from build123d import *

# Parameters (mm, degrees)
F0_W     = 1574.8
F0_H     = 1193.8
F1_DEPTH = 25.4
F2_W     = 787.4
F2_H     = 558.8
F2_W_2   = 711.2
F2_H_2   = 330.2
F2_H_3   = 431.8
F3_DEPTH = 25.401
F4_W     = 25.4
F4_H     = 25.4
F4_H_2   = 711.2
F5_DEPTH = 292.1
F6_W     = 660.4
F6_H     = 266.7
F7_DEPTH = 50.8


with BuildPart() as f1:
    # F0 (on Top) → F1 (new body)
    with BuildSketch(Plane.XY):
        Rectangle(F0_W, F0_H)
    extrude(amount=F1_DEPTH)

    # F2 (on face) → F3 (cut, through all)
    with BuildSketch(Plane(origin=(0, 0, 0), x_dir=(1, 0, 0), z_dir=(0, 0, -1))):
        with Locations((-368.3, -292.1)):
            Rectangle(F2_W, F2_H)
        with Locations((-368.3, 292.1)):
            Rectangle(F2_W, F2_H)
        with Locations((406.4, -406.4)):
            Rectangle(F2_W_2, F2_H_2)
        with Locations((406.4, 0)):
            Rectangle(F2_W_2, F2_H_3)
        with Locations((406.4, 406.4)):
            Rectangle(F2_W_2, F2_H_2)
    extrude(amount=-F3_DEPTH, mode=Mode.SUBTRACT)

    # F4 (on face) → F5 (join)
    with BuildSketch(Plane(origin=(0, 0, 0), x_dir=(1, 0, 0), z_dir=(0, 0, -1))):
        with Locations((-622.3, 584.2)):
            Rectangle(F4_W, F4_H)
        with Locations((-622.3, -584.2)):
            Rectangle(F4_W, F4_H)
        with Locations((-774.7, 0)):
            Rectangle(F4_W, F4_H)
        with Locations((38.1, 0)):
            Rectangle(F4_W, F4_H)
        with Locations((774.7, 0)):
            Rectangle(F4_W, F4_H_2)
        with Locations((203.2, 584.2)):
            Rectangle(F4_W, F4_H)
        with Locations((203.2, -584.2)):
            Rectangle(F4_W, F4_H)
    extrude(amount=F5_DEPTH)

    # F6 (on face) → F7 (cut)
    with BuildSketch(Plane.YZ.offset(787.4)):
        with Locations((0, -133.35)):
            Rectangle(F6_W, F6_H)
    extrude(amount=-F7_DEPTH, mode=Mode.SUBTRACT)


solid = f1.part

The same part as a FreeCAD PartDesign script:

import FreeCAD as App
import Part
import Sketcher

V = App.Vector
Q = App.Units.Quantity

doc = App.newDocument("Part")
body = doc.addObject("PartDesign::Body", "Body")

sketch1 = doc.addObject("Sketcher::SketchObject", "Sketch")
body.addObject(sketch1)
sketch1.AttachmentSupport = (doc.XY_Plane, [""])
sketch1.MapMode = "FlatFace"
sketch1.addGeometry([
    Part.LineSegment(V(-787.4, 596.9, 0), V(-787.4, -596.9, 0)),
    Part.LineSegment(V(-787.4, -596.9, 0), V(787.4, -596.9, 0)),
    Part.LineSegment(V(787.4, -596.9, 0), V(787.4, 596.9, 0)),
    Part.LineSegment(V(787.4, 596.9, 0), V(-787.4, 596.9, 0)),
], False)
sketch1.addConstraint([
    Sketcher.Constraint("Coincident", 0, 2, 1, 1),
    Sketcher.Constraint("Coincident", 1, 2, 2, 1),
    Sketcher.Constraint("Coincident", 2, 2, 3, 1),
    Sketcher.Constraint("Coincident", 3, 2, 0, 1),
    Sketcher.Constraint("Vertical", 0),
    Sketcher.Constraint("Horizontal", 1),
    Sketcher.Constraint("Vertical", 2),
    Sketcher.Constraint("Horizontal", 3),
    Sketcher.Constraint("Symmetric", 0, 2, 2, 2, -1, 1),
    Sketcher.Constraint("DistanceX", 1, 1, 1, 2, Q("62 in")),
    Sketcher.Constraint("DistanceY", 0, 2, 0, 1, Q("47 in")),
])
pad1 = doc.addObject("PartDesign::Pad", "Pad")
body.addObject(pad1)
pad1.Profile = sketch1
pad1.Length = Q("1 in")

sketch2 = doc.addObject("Sketcher::SketchObject", "Sketch001")
body.addObject(sketch2)
sketch2.AttachmentSupport = (doc.XY_Plane, [""])
sketch2.MapMode = "FlatFace"
sketch2.addGeometry([
    Part.LineSegment(V(-762, 12.7, 0), V(-762, 571.5, 0)),
    Part.LineSegment(V(-762, 571.5, 0), V(25.4, 571.5, 0)),
    Part.LineSegment(V(25.4, 571.5, 0), V(25.4, 12.7, 0)),
    Part.LineSegment(V(25.4, 12.7, 0), V(-762, 12.7, 0)),
    Part.LineSegment(V(-762, -571.5, 0), V(-762, -12.7, 0)),
    Part.LineSegment(V(-762, -12.7, 0), V(25.4, -12.7, 0)),
    Part.LineSegment(V(25.4, -12.7, 0), V(25.4, -571.5, 0)),
    Part.LineSegment(V(25.4, -571.5, 0), V(-762, -571.5, 0)),
    Part.LineSegment(V(50.8, 241.3, 0), V(50.8, 571.5, 0)),
    Part.LineSegment(V(50.8, 571.5, 0), V(762, 571.5, 0)),
    Part.LineSegment(V(762, 571.5, 0), V(762, 241.3, 0)),
    Part.LineSegment(V(762, 241.3, 0), V(50.8, 241.3, 0)),
    Part.LineSegment(V(50.8, -215.9, 0), V(50.8, 215.9, 0)),
    Part.LineSegment(V(50.8, 215.9, 0), V(762, 215.9, 0)),
    Part.LineSegment(V(762, 215.9, 0), V(762, -215.9, 0)),
    Part.LineSegment(V(762, -215.9, 0), V(50.8, -215.9, 0)),
    Part.LineSegment(V(50.8, -571.5, 0), V(50.8, -241.3, 0)),
    Part.LineSegment(V(50.8, -241.3, 0), V(762, -241.3, 0)),
    Part.LineSegment(V(762, -241.3, 0), V(762, -571.5, 0)),
    Part.LineSegment(V(762, -571.5, 0), V(50.8, -571.5, 0)),
], False)
sketch2.addConstraint([
    Sketcher.Constraint("Coincident", 0, 2, 1, 1),
    Sketcher.Constraint("Coincident", 1, 2, 2, 1),
    Sketcher.Constraint("Coincident", 2, 2, 3, 1),
    Sketcher.Constraint("Coincident", 3, 2, 0, 1),
    Sketcher.Constraint("Coincident", 4, 2, 5, 1),
    Sketcher.Constraint("Coincident", 5, 2, 6, 1),
    Sketcher.Constraint("Coincident", 6, 2, 7, 1),
    Sketcher.Constraint("Coincident", 7, 2, 4, 1),
    Sketcher.Constraint("Coincident", 8, 2, 9, 1),
    Sketcher.Constraint("Coincident", 9, 2, 10, 1),
    Sketcher.Constraint("Coincident", 10, 2, 11, 1),
    Sketcher.Constraint("Coincident", 11, 2, 8, 1),
    Sketcher.Constraint("Coincident", 12, 2, 13, 1),
    Sketcher.Constraint("Coincident", 13, 2, 14, 1),
    Sketcher.Constraint("Coincident", 14, 2, 15, 1),
    Sketcher.Constraint("Coincident", 15, 2, 12, 1),
    Sketcher.Constraint("Coincident", 16, 2, 17, 1),
    Sketcher.Constraint("Coincident", 17, 2, 18, 1),
    Sketcher.Constraint("Coincident", 18, 2, 19, 1),
    Sketcher.Constraint("Coincident", 19, 2, 16, 1),
    Sketcher.Constraint("Vertical", 0),
    Sketcher.Constraint("Horizontal", 1),
    Sketcher.Constraint("Vertical", 2),
    Sketcher.Constraint("Horizontal", 3),
    Sketcher.Constraint("Vertical", 4),
    Sketcher.Constraint("Horizontal", 5),
    Sketcher.Constraint("Vertical", 6),
    Sketcher.Constraint("Horizontal", 7),
    Sketcher.Constraint("Vertical", 8),
    Sketcher.Constraint("Horizontal", 9),
    Sketcher.Constraint("Vertical", 10),
    Sketcher.Constraint("Horizontal", 11),
    Sketcher.Constraint("Vertical", 12),
    Sketcher.Constraint("Horizontal", 13),
    Sketcher.Constraint("Vertical", 14),
    Sketcher.Constraint("Horizontal", 15),
    Sketcher.Constraint("Vertical", 16),
    Sketcher.Constraint("Horizontal", 17),
    Sketcher.Constraint("Vertical", 18),
    Sketcher.Constraint("Horizontal", 19),
    Sketcher.Constraint("Symmetric", 7, 2, 9, 2, -1, 1),
    Sketcher.Constraint("Symmetric", 0, 2, 18, 2, -1, 1),
    Sketcher.Constraint("Symmetric", 0, 2, 9, 2, -2),
    Sketcher.Constraint("Symmetric", 2, 2, 5, 2, -1),
    Sketcher.Constraint("Symmetric", 11, 2, 16, 2, -1),
    Sketcher.Constraint("Vertical", 11, 2, 12, 2),
    Sketcher.Constraint("Vertical", 10, 2, 13, 2),
    Sketcher.Constraint("DistanceX", 1, 1, 1, 2, Q("31 in")),
    Sketcher.Constraint("DistanceX", 9, 1, 9, 2, Q("28 in")),
    Sketcher.Constraint("DistanceY", 0, 1, 0, 2, Q("22 in")),
    Sketcher.Constraint("DistanceY", 8, 1, 8, 2, Q("13 in")),
    Sketcher.Constraint("DistanceY", 12, 1, 12, 2, Q("17 in")),
    Sketcher.Constraint("DistanceX", 0, 2, -1, 1, Q("30 in")),
    Sketcher.Constraint("DistanceY", 4, 2, 3, 2, Q("1 in")),
    Sketcher.Constraint("DistanceY", 12, 2, 11, 2, Q("1 in")),
])
pocket1 = doc.addObject("PartDesign::Pocket", "Pocket")
body.addObject(pocket1)
pocket1.Profile = sketch2
pocket1.Type = "ThroughAll"
pocket1.Reversed = True

sketch3 = doc.addObject("Sketcher::SketchObject", "Sketch002")
body.addObject(sketch3)
sketch3.AttachmentSupport = (doc.XY_Plane, [""])
sketch3.MapMode = "FlatFace"
sketch3.addGeometry([
    Part.LineSegment(V(-635, -596.9, 0), V(-635, -571.5, 0)),
    Part.LineSegment(V(-635, -571.5, 0), V(-609.6, -571.5, 0)),
    Part.LineSegment(V(-609.6, -571.5, 0), V(-609.6, -596.9, 0)),
    Part.LineSegment(V(-609.6, -596.9, 0), V(-635, -596.9, 0)),
    Part.LineSegment(V(-635, 571.5, 0), V(-635, 596.9, 0)),
    Part.LineSegment(V(-635, 596.9, 0), V(-609.6, 596.9, 0)),
    Part.LineSegment(V(-609.6, 596.9, 0), V(-609.6, 571.5, 0)),
    Part.LineSegment(V(-609.6, 571.5, 0), V(-635, 571.5, 0)),
    Part.LineSegment(V(-787.4, -12.7, 0), V(-787.4, 12.7, 0)),
    Part.LineSegment(V(-787.4, 12.7, 0), V(-762, 12.7, 0)),
    Part.LineSegment(V(-762, 12.7, 0), V(-762, -12.7, 0)),
    Part.LineSegment(V(-762, -12.7, 0), V(-787.4, -12.7, 0)),
    Part.LineSegment(V(25.4, -12.7, 0), V(25.4, 12.7, 0)),
    Part.LineSegment(V(25.4, 12.7, 0), V(50.8, 12.7, 0)),
    Part.LineSegment(V(50.8, 12.7, 0), V(50.8, -12.7, 0)),
    Part.LineSegment(V(50.8, -12.7, 0), V(25.4, -12.7, 0)),
    Part.LineSegment(V(762, -355.6, 0), V(762, 355.6, 0)),
    Part.LineSegment(V(762, 355.6, 0), V(787.4, 355.6, 0)),
    Part.LineSegment(V(787.4, 355.6, 0), V(787.4, -355.6, 0)),
    Part.LineSegment(V(787.4, -355.6, 0), V(762, -355.6, 0)),
    Part.LineSegment(V(190.5, -596.9, 0), V(190.5, -571.5, 0)),
    Part.LineSegment(V(190.5, -571.5, 0), V(215.9, -571.5, 0)),
    Part.LineSegment(V(215.9, -571.5, 0), V(215.9, -596.9, 0)),
    Part.LineSegment(V(215.9, -596.9, 0), V(190.5, -596.9, 0)),
    Part.LineSegment(V(190.5, 571.5, 0), V(190.5, 596.9, 0)),
    Part.LineSegment(V(190.5, 596.9, 0), V(215.9, 596.9, 0)),
    Part.LineSegment(V(215.9, 596.9, 0), V(215.9, 571.5, 0)),
    Part.LineSegment(V(215.9, 571.5, 0), V(190.5, 571.5, 0)),
], False)
sketch3.addConstraint([
    Sketcher.Constraint("Coincident", 0, 2, 1, 1),
    Sketcher.Constraint("Coincident", 1, 2, 2, 1),
    Sketcher.Constraint("Coincident", 2, 2, 3, 1),
    Sketcher.Constraint("Coincident", 3, 2, 0, 1),
    Sketcher.Constraint("Coincident", 4, 2, 5, 1),
    Sketcher.Constraint("Coincident", 5, 2, 6, 1),
    Sketcher.Constraint("Coincident", 6, 2, 7, 1),
    Sketcher.Constraint("Coincident", 7, 2, 4, 1),
    Sketcher.Constraint("Coincident", 8, 2, 9, 1),
    Sketcher.Constraint("Coincident", 9, 2, 10, 1),
    Sketcher.Constraint("Coincident", 10, 2, 11, 1),
    Sketcher.Constraint("Coincident", 11, 2, 8, 1),
    Sketcher.Constraint("Coincident", 12, 2, 13, 1),
    Sketcher.Constraint("Coincident", 13, 2, 14, 1),
    Sketcher.Constraint("Coincident", 14, 2, 15, 1),
    Sketcher.Constraint("Coincident", 15, 2, 12, 1),
    Sketcher.Constraint("Coincident", 16, 2, 17, 1),
    Sketcher.Constraint("Coincident", 17, 2, 18, 1),
    Sketcher.Constraint("Coincident", 18, 2, 19, 1),
    Sketcher.Constraint("Coincident", 19, 2, 16, 1),
    Sketcher.Constraint("Coincident", 20, 2, 21, 1),
    Sketcher.Constraint("Coincident", 21, 2, 22, 1),
    Sketcher.Constraint("Coincident", 22, 2, 23, 1),
    Sketcher.Constraint("Coincident", 23, 2, 20, 1),
    Sketcher.Constraint("Coincident", 24, 2, 25, 1),
    Sketcher.Constraint("Coincident", 25, 2, 26, 1),
    Sketcher.Constraint("Coincident", 26, 2, 27, 1),
    Sketcher.Constraint("Coincident", 27, 2, 24, 1),
    Sketcher.Constraint("Vertical", 0),
    Sketcher.Constraint("Horizontal", 1),
    Sketcher.Constraint("Vertical", 2),
    Sketcher.Constraint("Horizontal", 3),
    Sketcher.Constraint("Vertical", 4),
    Sketcher.Constraint("Horizontal", 5),
    Sketcher.Constraint("Vertical", 6),
    Sketcher.Constraint("Horizontal", 7),
    Sketcher.Constraint("Vertical", 8),
    Sketcher.Constraint("Horizontal", 9),
    Sketcher.Constraint("Vertical", 10),
    Sketcher.Constraint("Horizontal", 11),
    Sketcher.Constraint("Vertical", 12),
    Sketcher.Constraint("Horizontal", 13),
    Sketcher.Constraint("Vertical", 14),
    Sketcher.Constraint("Horizontal", 15),
    Sketcher.Constraint("Vertical", 16),
    Sketcher.Constraint("Horizontal", 17),
    Sketcher.Constraint("Vertical", 18),
    Sketcher.Constraint("Horizontal", 19),
    Sketcher.Constraint("Vertical", 20),
    Sketcher.Constraint("Horizontal", 21),
    Sketcher.Constraint("Vertical", 22),
    Sketcher.Constraint("Horizontal", 23),
    Sketcher.Constraint("Vertical", 24),
    Sketcher.Constraint("Horizontal", 25),
    Sketcher.Constraint("Vertical", 26),
    Sketcher.Constraint("Horizontal", 27),
    Sketcher.Constraint("Symmetric", 3, 2, 4, 2, -1),
    Sketcher.Constraint("Symmetric", 1, 2, 6, 2, -1),
    Sketcher.Constraint("Symmetric", 23, 2, 24, 2, -1),
    Sketcher.Constraint("Symmetric", 21, 2, 26, 2, -1),
    Sketcher.Constraint("Horizontal", 9, 2, 12, 2),
    Sketcher.Constraint("Horizontal", 11, 2, 14, 2),
    Sketcher.Constraint("Horizontal", 1, 2, 20, 2),
    Sketcher.Constraint("Horizontal", 3, 2, 22, 2),
    Sketcher.Constraint("Equal", 7, 9),
    Sketcher.Constraint("Equal", 11, 13),
    Sketcher.Constraint("Equal", 15, 17),
    Sketcher.Constraint("Equal", 19, 21),
    Sketcher.Constraint("Equal", 27, 0),
    Sketcher.Constraint("Equal", 6, 8),
    Sketcher.Constraint("DistanceX", 1, 1, 1, 2, Q("1 in")),
    Sketcher.Constraint("DistanceY", 16, 1, 16, 2, Q("28 in")),
    Sketcher.Constraint("DistanceX", 0, 2, -1, 1, Q("25 in")),
    Sketcher.Constraint("DistanceX", 8, 2, -1, 1, Q("31 in")),
    Sketcher.Constraint("DistanceX", -1, 1, 12, 2, Q("1 in")),
    Sketcher.Constraint("DistanceX", -1, 1, 16, 2, Q("30 in")),
    Sketcher.Constraint("DistanceY", -1, 1, 16, 2, Q("14 in")),
    Sketcher.Constraint("DistanceY", 0, 2, 4, 2, Q("46 in")),
    Sketcher.Constraint("DistanceY", 8, 2, 7, 2, Q("22 in")),
    Sketcher.Constraint("DistanceX", -1, 1, 20, 2, Q("7.5 in")),
])
pad2 = doc.addObject("PartDesign::Pad", "Pad001")
body.addObject(pad2)
pad2.Profile = sketch3
pad2.Length = Q("11.5 in")
pad2.Reversed = True

sketch4 = doc.addObject("Sketcher::SketchObject", "Sketch003")
body.addObject(sketch4)
sketch4.AttachmentSupport = (doc.YZ_Plane, [""])
sketch4.MapMode = "FlatFace"
sketch4.AttachmentOffset = App.Placement(V(0, 0, 31 * 25.4), App.Rotation())
sketch4.addGeometry([
    Part.LineSegment(V(-330.2, 0, 0), V(-330.2, -266.7, 0)),
    Part.LineSegment(V(-330.2, -266.7, 0), V(330.2, -266.7, 0)),
    Part.LineSegment(V(330.2, -266.7, 0), V(330.2, 0, 0)),
    Part.LineSegment(V(330.2, 0, 0), V(-330.2, 0, 0)),
], False)
sketch4.addConstraint([
    Sketcher.Constraint("Coincident", 0, 2, 1, 1),
    Sketcher.Constraint("Coincident", 1, 2, 2, 1),
    Sketcher.Constraint("Coincident", 2, 2, 3, 1),
    Sketcher.Constraint("Coincident", 3, 2, 0, 1),
    Sketcher.Constraint("Vertical", 0),
    Sketcher.Constraint("Horizontal", 1),
    Sketcher.Constraint("Vertical", 2),
    Sketcher.Constraint("Horizontal", 3),
    Sketcher.Constraint("Symmetric", 2, 2, 3, 2, -1, 1),
    Sketcher.Constraint("DistanceX", 1, 1, 1, 2, Q("26 in")),
    Sketcher.Constraint("DistanceY", 0, 2, 0, 1, Q("10.5 in")),
])
pocket2 = doc.addObject("PartDesign::Pocket", "Pocket001")
body.addObject(pocket2)
pocket2.Profile = sketch4
pocket2.Length = Q("2 in")

doc.recompute()
